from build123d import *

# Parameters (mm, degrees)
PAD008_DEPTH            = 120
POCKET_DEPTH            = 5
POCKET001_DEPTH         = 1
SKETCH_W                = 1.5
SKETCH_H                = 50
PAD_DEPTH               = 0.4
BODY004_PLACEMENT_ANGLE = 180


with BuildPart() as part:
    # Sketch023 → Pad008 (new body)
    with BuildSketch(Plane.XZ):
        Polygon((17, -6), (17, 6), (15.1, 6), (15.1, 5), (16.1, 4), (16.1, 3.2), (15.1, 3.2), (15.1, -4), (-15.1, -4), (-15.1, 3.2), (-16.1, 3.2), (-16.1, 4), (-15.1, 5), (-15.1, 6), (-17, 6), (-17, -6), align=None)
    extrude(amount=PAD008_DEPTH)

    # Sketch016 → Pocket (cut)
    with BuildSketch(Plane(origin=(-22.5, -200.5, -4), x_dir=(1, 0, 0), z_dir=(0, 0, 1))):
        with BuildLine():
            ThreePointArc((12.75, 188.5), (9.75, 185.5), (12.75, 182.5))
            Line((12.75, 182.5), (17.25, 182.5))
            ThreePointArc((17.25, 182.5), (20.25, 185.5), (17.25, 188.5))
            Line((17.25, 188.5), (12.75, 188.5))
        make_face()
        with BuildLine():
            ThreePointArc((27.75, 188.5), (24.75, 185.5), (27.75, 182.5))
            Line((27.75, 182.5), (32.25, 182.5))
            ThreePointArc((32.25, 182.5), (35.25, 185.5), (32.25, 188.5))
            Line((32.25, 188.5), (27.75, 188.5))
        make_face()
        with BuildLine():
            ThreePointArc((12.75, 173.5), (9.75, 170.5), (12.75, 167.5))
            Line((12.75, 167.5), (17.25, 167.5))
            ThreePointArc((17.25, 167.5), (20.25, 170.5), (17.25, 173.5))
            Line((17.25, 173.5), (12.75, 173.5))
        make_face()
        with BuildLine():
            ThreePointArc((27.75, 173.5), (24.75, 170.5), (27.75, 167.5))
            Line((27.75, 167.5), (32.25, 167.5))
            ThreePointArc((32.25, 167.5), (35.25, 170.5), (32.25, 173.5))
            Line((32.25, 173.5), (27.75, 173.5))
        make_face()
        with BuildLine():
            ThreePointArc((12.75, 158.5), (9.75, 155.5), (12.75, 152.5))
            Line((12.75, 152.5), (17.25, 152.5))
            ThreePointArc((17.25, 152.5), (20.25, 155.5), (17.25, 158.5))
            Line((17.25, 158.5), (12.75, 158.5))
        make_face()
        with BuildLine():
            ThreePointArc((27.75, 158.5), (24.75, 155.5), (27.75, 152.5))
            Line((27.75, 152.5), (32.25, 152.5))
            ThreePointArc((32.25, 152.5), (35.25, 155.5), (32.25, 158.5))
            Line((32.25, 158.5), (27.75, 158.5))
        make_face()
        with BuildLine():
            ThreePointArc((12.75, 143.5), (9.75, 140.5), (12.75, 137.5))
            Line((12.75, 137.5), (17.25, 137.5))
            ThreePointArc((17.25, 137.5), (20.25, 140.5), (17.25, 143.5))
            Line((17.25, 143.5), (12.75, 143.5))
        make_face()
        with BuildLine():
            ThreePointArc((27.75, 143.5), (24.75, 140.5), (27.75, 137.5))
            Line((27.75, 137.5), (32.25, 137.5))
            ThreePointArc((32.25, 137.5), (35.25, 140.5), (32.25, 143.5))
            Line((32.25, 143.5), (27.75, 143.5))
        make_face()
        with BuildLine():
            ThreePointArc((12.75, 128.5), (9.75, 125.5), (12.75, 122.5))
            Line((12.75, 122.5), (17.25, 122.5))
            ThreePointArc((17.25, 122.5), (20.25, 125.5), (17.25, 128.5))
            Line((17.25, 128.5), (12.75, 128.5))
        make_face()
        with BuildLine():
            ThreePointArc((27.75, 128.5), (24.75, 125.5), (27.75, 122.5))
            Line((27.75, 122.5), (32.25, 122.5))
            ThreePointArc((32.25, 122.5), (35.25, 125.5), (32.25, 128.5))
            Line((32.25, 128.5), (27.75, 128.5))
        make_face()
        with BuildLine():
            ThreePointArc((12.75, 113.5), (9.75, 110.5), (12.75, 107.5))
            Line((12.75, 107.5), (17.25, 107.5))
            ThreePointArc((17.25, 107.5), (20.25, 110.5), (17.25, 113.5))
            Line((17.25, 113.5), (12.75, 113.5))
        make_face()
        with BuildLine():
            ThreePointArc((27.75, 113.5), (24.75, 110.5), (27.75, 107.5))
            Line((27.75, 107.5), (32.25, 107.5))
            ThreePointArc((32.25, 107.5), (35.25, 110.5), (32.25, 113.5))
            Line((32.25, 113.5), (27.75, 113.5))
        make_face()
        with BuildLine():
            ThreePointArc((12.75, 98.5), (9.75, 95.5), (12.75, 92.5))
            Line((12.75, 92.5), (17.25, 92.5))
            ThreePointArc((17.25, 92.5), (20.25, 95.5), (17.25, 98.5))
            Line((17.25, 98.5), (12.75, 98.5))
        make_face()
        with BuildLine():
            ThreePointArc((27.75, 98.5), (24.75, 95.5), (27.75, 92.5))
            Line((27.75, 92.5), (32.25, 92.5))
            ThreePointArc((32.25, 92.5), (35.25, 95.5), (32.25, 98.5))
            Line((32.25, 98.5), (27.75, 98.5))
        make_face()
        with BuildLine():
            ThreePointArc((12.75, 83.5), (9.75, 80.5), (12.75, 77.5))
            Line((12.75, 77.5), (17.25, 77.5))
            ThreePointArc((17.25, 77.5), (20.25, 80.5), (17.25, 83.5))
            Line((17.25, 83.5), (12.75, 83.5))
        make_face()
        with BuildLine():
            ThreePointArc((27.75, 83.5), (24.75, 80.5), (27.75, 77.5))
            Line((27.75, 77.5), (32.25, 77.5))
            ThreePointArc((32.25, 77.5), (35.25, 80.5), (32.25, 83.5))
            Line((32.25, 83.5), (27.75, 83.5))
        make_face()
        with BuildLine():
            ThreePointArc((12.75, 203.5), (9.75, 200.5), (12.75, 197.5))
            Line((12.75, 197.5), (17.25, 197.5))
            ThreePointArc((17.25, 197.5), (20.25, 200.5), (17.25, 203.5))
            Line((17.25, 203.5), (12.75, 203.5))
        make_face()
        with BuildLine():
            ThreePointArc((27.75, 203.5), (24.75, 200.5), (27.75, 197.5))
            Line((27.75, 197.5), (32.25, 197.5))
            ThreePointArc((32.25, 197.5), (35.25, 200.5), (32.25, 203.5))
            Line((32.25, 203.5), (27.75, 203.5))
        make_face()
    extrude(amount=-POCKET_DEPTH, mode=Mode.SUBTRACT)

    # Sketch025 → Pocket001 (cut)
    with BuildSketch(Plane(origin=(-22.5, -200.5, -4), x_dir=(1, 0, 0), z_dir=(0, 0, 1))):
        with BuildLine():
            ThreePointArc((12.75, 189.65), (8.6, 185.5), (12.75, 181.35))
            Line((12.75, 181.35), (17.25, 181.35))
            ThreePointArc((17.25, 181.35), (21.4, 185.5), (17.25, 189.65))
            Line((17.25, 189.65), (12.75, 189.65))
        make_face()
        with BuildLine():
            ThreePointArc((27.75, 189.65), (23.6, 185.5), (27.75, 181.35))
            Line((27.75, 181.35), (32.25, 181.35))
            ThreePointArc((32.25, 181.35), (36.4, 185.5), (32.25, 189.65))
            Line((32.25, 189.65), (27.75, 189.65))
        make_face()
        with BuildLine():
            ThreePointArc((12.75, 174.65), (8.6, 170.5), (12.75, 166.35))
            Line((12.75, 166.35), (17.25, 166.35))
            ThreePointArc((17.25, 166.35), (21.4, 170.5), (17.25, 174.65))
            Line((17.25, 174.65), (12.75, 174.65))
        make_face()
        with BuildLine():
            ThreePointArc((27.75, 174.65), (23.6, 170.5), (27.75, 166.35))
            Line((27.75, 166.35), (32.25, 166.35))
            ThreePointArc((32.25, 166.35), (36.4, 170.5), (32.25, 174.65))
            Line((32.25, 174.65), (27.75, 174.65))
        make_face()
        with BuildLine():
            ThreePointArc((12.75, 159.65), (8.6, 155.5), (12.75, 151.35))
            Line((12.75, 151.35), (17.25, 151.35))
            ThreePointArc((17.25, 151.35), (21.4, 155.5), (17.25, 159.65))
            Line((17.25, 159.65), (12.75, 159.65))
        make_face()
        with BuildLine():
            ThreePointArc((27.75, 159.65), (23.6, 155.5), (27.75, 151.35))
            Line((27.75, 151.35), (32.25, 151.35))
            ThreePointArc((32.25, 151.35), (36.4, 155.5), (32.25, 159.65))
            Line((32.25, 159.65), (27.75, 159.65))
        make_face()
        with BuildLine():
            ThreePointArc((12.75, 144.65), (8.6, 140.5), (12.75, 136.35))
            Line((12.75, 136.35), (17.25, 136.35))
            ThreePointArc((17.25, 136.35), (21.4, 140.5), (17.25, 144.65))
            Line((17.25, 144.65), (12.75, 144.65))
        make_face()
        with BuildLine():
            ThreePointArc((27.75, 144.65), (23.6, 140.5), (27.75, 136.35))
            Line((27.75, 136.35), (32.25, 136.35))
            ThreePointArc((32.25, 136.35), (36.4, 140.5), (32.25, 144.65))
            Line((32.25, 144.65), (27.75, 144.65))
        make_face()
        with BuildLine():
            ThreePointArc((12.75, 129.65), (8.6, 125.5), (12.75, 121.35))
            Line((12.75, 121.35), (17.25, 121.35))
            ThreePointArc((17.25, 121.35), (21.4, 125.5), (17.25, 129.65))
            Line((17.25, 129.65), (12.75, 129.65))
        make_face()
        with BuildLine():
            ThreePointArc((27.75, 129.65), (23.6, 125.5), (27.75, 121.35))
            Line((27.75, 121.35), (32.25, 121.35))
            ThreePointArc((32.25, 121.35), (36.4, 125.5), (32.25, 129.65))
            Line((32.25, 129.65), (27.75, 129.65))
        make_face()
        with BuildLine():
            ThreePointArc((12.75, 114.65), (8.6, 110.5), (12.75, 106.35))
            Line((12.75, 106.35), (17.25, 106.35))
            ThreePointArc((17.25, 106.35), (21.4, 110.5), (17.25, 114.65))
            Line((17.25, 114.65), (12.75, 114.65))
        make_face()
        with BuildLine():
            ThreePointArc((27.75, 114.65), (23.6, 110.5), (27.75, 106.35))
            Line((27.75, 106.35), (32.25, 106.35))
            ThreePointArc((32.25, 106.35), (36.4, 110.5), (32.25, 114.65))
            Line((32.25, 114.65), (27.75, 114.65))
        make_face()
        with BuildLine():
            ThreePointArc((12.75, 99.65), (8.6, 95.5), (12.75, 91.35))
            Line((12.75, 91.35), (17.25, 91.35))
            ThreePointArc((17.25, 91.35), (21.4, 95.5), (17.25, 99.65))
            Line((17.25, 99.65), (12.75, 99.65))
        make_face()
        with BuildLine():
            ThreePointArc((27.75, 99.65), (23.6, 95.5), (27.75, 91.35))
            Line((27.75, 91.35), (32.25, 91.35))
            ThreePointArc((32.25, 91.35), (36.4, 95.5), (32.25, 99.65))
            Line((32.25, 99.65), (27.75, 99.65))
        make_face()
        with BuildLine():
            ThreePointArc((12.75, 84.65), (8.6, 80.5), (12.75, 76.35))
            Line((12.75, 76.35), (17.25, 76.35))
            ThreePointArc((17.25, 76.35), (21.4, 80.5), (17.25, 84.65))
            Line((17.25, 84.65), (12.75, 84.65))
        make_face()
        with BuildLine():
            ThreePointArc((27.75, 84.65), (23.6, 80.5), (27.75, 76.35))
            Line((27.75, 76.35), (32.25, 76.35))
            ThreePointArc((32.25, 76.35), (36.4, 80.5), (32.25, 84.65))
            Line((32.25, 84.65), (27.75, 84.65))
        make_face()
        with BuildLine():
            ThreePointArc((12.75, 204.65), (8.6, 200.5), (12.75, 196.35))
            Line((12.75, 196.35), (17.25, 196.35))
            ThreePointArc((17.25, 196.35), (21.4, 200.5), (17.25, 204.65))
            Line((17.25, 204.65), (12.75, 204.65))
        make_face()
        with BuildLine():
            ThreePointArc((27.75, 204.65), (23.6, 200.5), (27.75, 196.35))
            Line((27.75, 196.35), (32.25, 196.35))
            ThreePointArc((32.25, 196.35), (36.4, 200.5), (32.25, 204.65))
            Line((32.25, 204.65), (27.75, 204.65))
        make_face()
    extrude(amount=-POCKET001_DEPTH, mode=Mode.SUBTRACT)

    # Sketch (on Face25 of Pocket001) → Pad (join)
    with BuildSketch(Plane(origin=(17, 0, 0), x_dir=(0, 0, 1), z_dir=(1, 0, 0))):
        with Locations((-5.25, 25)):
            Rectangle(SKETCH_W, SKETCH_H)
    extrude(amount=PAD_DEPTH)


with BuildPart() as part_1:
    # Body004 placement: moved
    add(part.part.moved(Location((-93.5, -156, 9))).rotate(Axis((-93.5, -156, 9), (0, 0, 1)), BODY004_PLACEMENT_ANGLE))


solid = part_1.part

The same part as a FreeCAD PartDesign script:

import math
import FreeCAD as App
import Part
import Sketcher
Q = App.Units.Quantity


def add_polygon(sketch, points):
    """Adds a closed chain of lines whose ends are joined by coincident constraints."""
    first, n = sketch.GeometryCount, len(points)
    for a, b in zip(points, points[1:] + points[:1]):
        sketch.addGeometry(Part.LineSegment(App.Vector(*a, 0), App.Vector(*b, 0)), False)
    for i in range(n):
        sketch.addConstraint(Sketcher.Constraint("Coincident", first + i, 2, first + (i + 1) % n, 1))

doc = App.newDocument("Part")
body = doc.addObject("PartDesign::Body", "Body")

sketch1 = doc.addObject("Sketcher::SketchObject", "Sketch")
body.addObject(sketch1)
sketch1.AttachmentSupport = (doc.XZ_Plane, [""])
sketch1.MapMode = "FlatFace"
add_polygon(sketch1, [(17, -6), (17, 6), (15.1, 6), (15.1, 5), (16.1, 4), (16.1, 3.2), (15.1, 3.2), (15.1, -4), (-15.1, -4), (-15.1, 3.2), (-16.1, 3.2), (-16.1, 4), (-15.1, 5), (-15.1, 6), (-17, 6), (-17, -6)])
sketch1.addConstraint([
    Sketcher.Constraint("Vertical", 0),
    Sketcher.Constraint("Horizontal", 1),
    Sketcher.Constraint("Vertical", 2),
    Sketcher.Constraint("Vertical", 4),
    Sketcher.Constraint("Horizontal", 5),
    Sketcher.Constraint("Vertical", 6),
    Sketcher.Constraint("Horizontal", 7),
    Sketcher.Constraint("Vertical", 8),
    Sketcher.Constraint("Horizontal", 9),
    Sketcher.Constraint("Vertical", 10),
    Sketcher.Constraint("Vertical", 12),
    Sketcher.Constraint("Horizontal", 13),
    Sketcher.Constraint("Vertical", 14),
    Sketcher.Constraint("Horizontal", 15),
    Sketcher.Constraint("Symmetric", 0, 2, 14, 2, -1, 1),
    Sketcher.Constraint("Symmetric", 5, 2, 8, 2, -2),
    Sketcher.Constraint("Symmetric", 3, 2, 10, 2, -2),
    Sketcher.Constraint("Symmetric", 2, 2, 11, 2, -2),
    Sketcher.Constraint("Perpendicular", 3, 11),
    Sketcher.Constraint("Horizontal", 1, 2, 12, 2),
    Sketcher.Constraint("Vertical", 2, 2, 5, 2),
    Sketcher.Constraint("Equal", 9, 2),
    Sketcher.Constraint("DistanceX", 5, 2, 5, 1, Q("1 mm")),
    Sketcher.Constraint("DistanceX", 15, 1, 15, 2, Q("34 mm")),
    Sketcher.Constraint("DistanceY", 0, 1, 0, 2, Q("12 mm")),
    Sketcher.Constraint("DistanceX", 1, 2, 1, 1, Q("1.9 mm")),
    Sketcher.Constraint("DistanceY", 4, 2, 4, 1, Q("0.8 mm")),
    Sketcher.Constraint("DistanceY", 6, 2, 6, 1, Q("7.2 mm")),
])
pad1 = doc.addObject("PartDesign::Pad", "Pad")
body.addObject(pad1)
pad1.Profile = sketch1
pad1.Length = 120

sketch2 = doc.addObject("Sketcher::SketchObject", "Sketch001")
body.addObject(sketch2)
sketch2.AttachmentSupport = (doc.XY_Plane, [""])
sketch2.MapMode = "FlatFace"
sketch2.AttachmentOffset = App.Placement(App.Vector(0, 0, -4), App.Rotation())
sketch2.addGeometry([
    Part.ArcOfCircle(Part.Circle(App.Vector(-9.8, -15, 0), App.Vector(0, 0, 1), 3), math.radians(90), math.radians(270)),
    Part.LineSegment(App.Vector(-9.8, -18, 0), App.Vector(-5.2, -18, 0)),
    Part.ArcOfCircle(Part.Circle(App.Vector(-5.2, -15, 0), App.Vector(0, 0, 1), 3), math.radians(-90), math.radians(90)),
    Part.LineSegment(App.Vector(-5.2, -12, 0), App.Vector(-9.8, -12, 0)),
    Part.ArcOfCircle(Part.Circle(App.Vector(5.2, -15, 0), App.Vector(0, 0, 1), 3), math.radians(90), math.radians(270)),
    Part.LineSegment(App.Vector(5.2, -18, 0), App.Vector(9.8, -18, 0)),
    Part.ArcOfCircle(Part.Circle(App.Vector(9.8, -15, 0), App.Vector(0, 0, 1), 3), math.radians(-90), math.radians(90)),
    Part.LineSegment(App.Vector(9.8, -12, 0), App.Vector(5.2, -12, 0)),
    Part.ArcOfCircle(Part.Circle(App.Vector(-9.8, -30, 0), App.Vector(0, 0, 1), 3), math.radians(90), math.radians(270)),
    Part.LineSegment(App.Vector(-9.8, -33, 0), App.Vector(-5.2, -33, 0)),
    Part.ArcOfCircle(Part.Circle(App.Vector(-5.2, -30, 0), App.Vector(0, 0, 1), 3), math.radians(-90), math.radians(90)),
    Part.LineSegment(App.Vector(-5.2, -27, 0), App.Vector(-9.8, -27, 0)),
    Part.ArcOfCircle(Part.Circle(App.Vector(5.2, -30, 0), App.Vector(0, 0, 1), 3), math.radians(90), math.radians(270)),
    Part.LineSegment(App.Vector(5.2, -33, 0), App.Vector(9.8, -33, 0)),
    Part.ArcOfCircle(Part.Circle(App.Vector(9.8, -30, 0), App.Vector(0, 0, 1), 3), math.radians(-90), math.radians(90)),
    Part.LineSegment(App.Vector(9.8, -27, 0), App.Vector(5.2, -27, 0)),
    Part.ArcOfCircle(Part.Circle(App.Vector(-9.8, -45, 0), App.Vector(0, 0, 1), 3), math.radians(90), math.radians(270)),
    Part.LineSegment(App.Vector(-9.8, -48, 0), App.Vector(-5.2, -48, 0)),
    Part.ArcOfCircle(Part.Circle(App.Vector(-5.2, -45, 0), App.Vector(0, 0, 1), 3), math.radians(-90), math.radians(90)),
    Part.LineSegment(App.Vector(-5.2, -42, 0), App.Vector(-9.8, -42, 0)),
    Part.ArcOfCircle(Part.Circle(App.Vector(5.2, -45, 0), App.Vector(0, 0, 1), 3), math.radians(90), math.radians(270)),
    Part.LineSegment(App.Vector(5.2, -48, 0), App.Vector(9.8, -48, 0)),
    Part.ArcOfCircle(Part.Circle(App.Vector(9.8, -45, 0), App.Vector(0, 0, 1), 3), math.radians(-90), math.radians(90)),
    Part.LineSegment(App.Vector(9.8, -42, 0), App.Vector(5.2, -42, 0)),
    Part.ArcOfCircle(Part.Circle(App.Vector(-9.8, -60, 0), App.Vector(0, 0, 1), 3), math.radians(90), math.radians(270)),
    Part.LineSegment(App.Vector(-9.8, -63, 0), App.Vector(-5.2, -63, 0)),
    Part.ArcOfCircle(Part.Circle(App.Vector(-5.2, -60, 0), App.Vector(0, 0, 1), 3), math.radians(-90), math.radians(90)),
    Part.LineSegment(App.Vector(-5.2, -57, 0), App.Vector(-9.8, -57, 0)),
    Part.ArcOfCircle(Part.Circle(App.Vector(5.2, -60, 0), App.Vector(0, 0, 1), 3), math.radians(90), math.radians(270)),
    Part.LineSegment(App.Vector(5.2, -63, 0), App.Vector(9.8, -63, 0)),
    Part.ArcOfCircle(Part.Circle(App.Vector(9.8, -60, 0), App.Vector(0, 0, 1), 3), math.radians(-90), math.radians(90)),
    Part.LineSegment(App.Vector(9.8, -57, 0), App.Vector(5.2, -57, 0)),
    Part.ArcOfCircle(Part.Circle(App.Vector(-9.8, -75, 0), App.Vector(0, 0, 1), 3), math.radians(90), math.radians(270)),
    Part.LineSegment(App.Vector(-9.8, -78, 0), App.Vector(-5.2, -78, 0)),
    Part.ArcOfCircle(Part.Circle(App.Vector(-5.2, -75, 0), App.Vector(0, 0, 1), 3), math.radians(-90), math.radians(90)),
    Part.LineSegment(App.Vector(-5.2, -72, 0), App.Vector(-9.8, -72, 0)),
    Part.ArcOfCircle(Part.Circle(App.Vector(5.2, -75, 0), App.Vector(0, 0, 1), 3), math.radians(90), math.radians(270)),
    Part.LineSegment(App.Vector(5.2, -78, 0), App.Vector(9.8, -78, 0)),
    Part.ArcOfCircle(Part.Circle(App.Vector(9.8, -75, 0), App.Vector(0, 0, 1), 3), math.radians(-90), math.radians(90)),
    Part.LineSegment(App.Vector(9.8, -72, 0), App.Vector(5.2, -72, 0)),
    Part.ArcOfCircle(Part.Circle(App.Vector(-9.8, -90, 0), App.Vector(0, 0, 1), 3), math.radians(90), math.radians(270)),
    Part.LineSegment(App.Vector(-9.8, -93, 0), App.Vector(-5.2, -93, 0)),
    Part.ArcOfCircle(Part.Circle(App.Vector(-5.2, -90, 0), App.Vector(0, 0, 1), 3), math.radians(-90), math.radians(90)),
    Part.LineSegment(App.Vector(-5.2, -87, 0), App.Vector(-9.8, -87, 0)),
    Part.ArcOfCircle(Part.Circle(App.Vector(5.2, -90, 0), App.Vector(0, 0, 1), 3), math.radians(90), math.radians(270)),
    Part.LineSegment(App.Vector(5.2, -93, 0), App.Vector(9.8, -93, 0)),
    Part.ArcOfCircle(Part.Circle(App.Vector(9.8, -90, 0), App.Vector(0, 0, 1), 3), math.radians(-90), math.radians(90)),
    Part.LineSegment(App.Vector(9.8, -87, 0), App.Vector(5.2, -87, 0)),
    Part.ArcOfCircle(Part.Circle(App.Vector(-9.8, -105, 0), App.Vector(0, 0, 1), 3), math.radians(90), math.radians(270)),
    Part.LineSegment(App.Vector(-9.8, -108, 0), App.Vector(-5.2, -108, 0)),
    Part.ArcOfCircle(Part.Circle(App.Vector(-5.2, -105, 0), App.Vector(0, 0, 1), 3), math.radians(-90), math.radians(90)),
    Part.LineSegment(App.Vector(-5.2, -102, 0), App.Vector(-9.8, -102, 0)),
    Part.ArcOfCircle(Part.Circle(App.Vector(5.2, -105, 0), App.Vector(0, 0, 1), 3), math.radians(90), math.radians(270)),
    Part.LineSegment(App.Vector(5.2, -108, 0), App.Vector(9.8, -108, 0)),
    Part.ArcOfCircle(Part.Circle(App.Vector(9.8, -105, 0), App.Vector(0, 0, 1), 3), math.radians(-90), math.radians(90)),
    Part.LineSegment(App.Vector(9.8, -102, 0), App.Vector(5.2, -102, 0)),
    Part.ArcOfCircle(Part.Circle(App.Vector(-9.8, -120, 0), App.Vector(0, 0, 1), 3), math.radians(90), math.radians(270)),
    Part.LineSegment(App.Vector(-9.8, -123, 0), App.Vector(-5.2, -123, 0)),
    Part.ArcOfCircle(Part.Circle(App.Vector(-5.2, -120, 0), App.Vector(0, 0, 1), 3), math.radians(-90), math.radians(90)),
    Part.LineSegment(App.Vector(-5.2, -117, 0), App.Vector(-9.8, -117, 0)),
    Part.ArcOfCircle(Part.Circle(App.Vector(5.2, -120, 0), App.Vector(0, 0, 1), 3), math.radians(90), math.radians(270)),
    Part.LineSegment(App.Vector(5.2, -123, 0), App.Vector(9.8, -123, 0)),
    Part.ArcOfCircle(Part.Circle(App.Vector(9.8, -120, 0), App.Vector(0, 0, 1), 3), math.radians(-90), math.radians(90)),
    Part.LineSegment(App.Vector(9.8, -117, 0), App.Vector(5.2, -117, 0)),
    Part.ArcOfCircle(Part.Circle(App.Vector(-9.8, 0, 0), App.Vector(0, 0, 1), 3), math.radians(90), math.radians(270)),
    Part.LineSegment(App.Vector(-9.8, -3, 0), App.Vector(-5.2, -3, 0)),
    Part.ArcOfCircle(Part.Circle(App.Vector(-5.2, 0, 0), App.Vector(0, 0, 1), 3), math.radians(-90), math.radians(90)),
    Part.LineSegment(App.Vector(-5.2, 3, 0), App.Vector(-9.8, 3, 0)),
    Part.ArcOfCircle(Part.Circle(App.Vector(5.2, 0, 0), App.Vector(0, 0, 1), 3), math.radians(90), math.radians(270)),
    Part.LineSegment(App.Vector(5.2, -3, 0), App.Vector(9.8, -3, 0)),
    Part.ArcOfCircle(Part.Circle(App.Vector(9.8, 0, 0), App.Vector(0, 0, 1), 3), math.radians(-90), math.radians(90)),
    Part.LineSegment(App.Vector(9.8, 3, 0), App.Vector(5.2, 3, 0)),
], False)
sketch2.addConstraint([
    Sketcher.Constraint("Tangent", 0, 2, 1, 1),
    Sketcher.Constraint("Tangent", 1, 2, 2, 1),
    Sketcher.Constraint("Tangent", 2, 2, 3, 1),
    Sketcher.Constraint("Tangent", 3, 2, 0, 1),
    Sketcher.Constraint("Tangent", 4, 2, 5, 1),
    Sketcher.Constraint("Tangent", 5, 2, 6, 1),
    Sketcher.Constraint("Tangent", 6, 2, 7, 1),
    Sketcher.Constraint("Tangent", 7, 2, 4, 1),
    Sketcher.Constraint("Tangent", 8, 2, 9, 1),
    Sketcher.Constraint("Tangent", 9, 2, 10, 1),
    Sketcher.Constraint("Tangent", 10, 2, 11, 1),
    Sketcher.Constraint("Tangent", 11, 2, 8, 1),
    Sketcher.Constraint("Tangent", 12, 2, 13, 1),
    Sketcher.Constraint("Tangent", 13, 2, 14, 1),
    Sketcher.Constraint("Tangent", 14, 2, 15, 1),
    Sketcher.Constraint("Tangent", 15, 2, 12, 1),
    Sketcher.Constraint("Tangent", 16, 2, 17, 1),
    Sketcher.Constraint("Tangent", 17, 2, 18, 1),
    Sketcher.Constraint("Tangent", 18, 2, 19, 1),
    Sketcher.Constraint("Tangent", 19, 2, 16, 1),
    Sketcher.Constraint("Tangent", 20, 2, 21, 1),
    Sketcher.Constraint("Tangent", 21, 2, 22, 1),
    Sketcher.Constraint("Tangent", 22, 2, 23, 1),
    Sketcher.Constraint("Tangent", 23, 2, 20, 1),
    Sketcher.Constraint("Tangent", 24, 2, 25, 1),
    Sketcher.Constraint("Tangent", 25, 2, 26, 1),
    Sketcher.Constraint("Tangent", 26, 2, 27, 1),
    Sketcher.Constraint("Tangent", 27, 2, 24, 1),
    Sketcher.Constraint("Tangent", 28, 2, 29, 1),
    Sketcher.Constraint("Tangent", 29, 2, 30, 1),
    Sketcher.Constraint("Tangent", 30, 2, 31, 1),
    Sketcher.Constraint("Tangent", 31, 2, 28, 1),
    Sketcher.Constraint("Tangent", 32, 2, 33, 1),
    Sketcher.Constraint("Tangent", 33, 2, 34, 1),
    Sketcher.Constraint("Tangent", 34, 2, 35, 1),
    Sketcher.Constraint("Tangent", 35, 2, 32, 1),
    Sketcher.Constraint("Tangent", 36, 2, 37, 1),
    Sketcher.Constraint("Tangent", 37, 2, 38, 1),
    Sketcher.Constraint("Tangent", 38, 2, 39, 1),
    Sketcher.Constraint("Tangent", 39, 2, 36, 1),
    Sketcher.Constraint("Tangent", 40, 2, 41, 1),
    Sketcher.Constraint("Tangent", 41, 2, 42, 1),
    Sketcher.Constraint("Tangent", 42, 2, 43, 1),
    Sketcher.Constraint("Tangent", 43, 2, 40, 1),
    Sketcher.Constraint("Tangent", 44, 2, 45, 1),
    Sketcher.Constraint("Tangent", 45, 2, 46, 1),
    Sketcher.Constraint("Tangent", 46, 2, 47, 1),
    Sketcher.Constraint("Tangent", 47, 2, 44, 1),
    Sketcher.Constraint("Tangent", 48, 2, 49, 1),
    Sketcher.Constraint("Tangent", 49, 2, 50, 1),
    Sketcher.Constraint("Tangent", 50, 2, 51, 1),
    Sketcher.Constraint("Tangent", 51, 2, 48, 1),
    Sketcher.Constraint("Tangent", 52, 2, 53, 1),
    Sketcher.Constraint("Tangent", 53, 2, 54, 1),
    Sketcher.Constraint("Tangent", 54, 2, 55, 1),
    Sketcher.Constraint("Tangent", 55, 2, 52, 1),
    Sketcher.Constraint("Tangent", 56, 2, 57, 1),
    Sketcher.Constraint("Tangent", 57, 2, 58, 1),
    Sketcher.Constraint("Tangent", 58, 2, 59, 1),
    Sketcher.Constraint("Tangent", 59, 2, 56, 1),
    Sketcher.Constraint("Tangent", 60, 2, 61, 1),
    Sketcher.Constraint("Tangent", 61, 2, 62, 1),
    Sketcher.Constraint("Tangent", 62, 2, 63, 1),
    Sketcher.Constraint("Tangent", 63, 2, 60, 1),
    Sketcher.Constraint("Tangent", 64, 2, 65, 1),
    Sketcher.Constraint("Tangent", 65, 2, 66, 1),
    Sketcher.Constraint("Tangent", 66, 2, 67, 1),
    Sketcher.Constraint("Tangent", 67, 2, 64, 1),
    Sketcher.Constraint("Tangent", 68, 2, 69, 1),
    Sketcher.Constraint("Tangent", 69, 2, 70, 1),
    Sketcher.Constraint("Tangent", 70, 2, 71, 1),
    Sketcher.Constraint("Tangent", 71, 2, 68, 1),
    Sketcher.Constraint("Horizontal", 1),
    Sketcher.Constraint("Horizontal", 3),
    Sketcher.Constraint("Horizontal", 5),
    Sketcher.Constraint("Horizontal", 7),
    Sketcher.Constraint("Horizontal", 9),
    Sketcher.Constraint("Horizontal", 11),
    Sketcher.Constraint("Horizontal", 13),
    Sketcher.Constraint("Horizontal", 15),
    Sketcher.Constraint("Horizontal", 17),
    Sketcher.Constraint("Horizontal", 19),
    Sketcher.Constraint("Horizontal", 21),
    Sketcher.Constraint("Horizontal", 23),
    Sketcher.Constraint("Horizontal", 25),
    Sketcher.Constraint("Horizontal", 27),
    Sketcher.Constraint("Horizontal", 29),
    Sketcher.Constraint("Horizontal", 31),
    Sketcher.Constraint("Horizontal", 33),
    Sketcher.Constraint("Horizontal", 35),
    Sketcher.Constraint("Horizontal", 37),
    Sketcher.Constraint("Horizontal", 39),
    Sketcher.Constraint("Horizontal", 41),
    Sketcher.Constraint("Horizontal", 43),
    Sketcher.Constraint("Horizontal", 45),
    Sketcher.Constraint("Horizontal", 47),
    Sketcher.Constraint("Horizontal", 49),
    Sketcher.Constraint("Horizontal", 51),
    Sketcher.Constraint("Horizontal", 53),
    Sketcher.Constraint("Horizontal", 55),
    Sketcher.Constraint("Horizontal", 57),
    Sketcher.Constraint("Horizontal", 59),
    Sketcher.Constraint("Horizontal", 61),
    Sketcher.Constraint("Horizontal", 63),
    Sketcher.Constraint("Horizontal", 65),
    Sketcher.Constraint("Horizontal", 67),
    Sketcher.Constraint("Horizontal", 69),
    Sketcher.Constraint("Horizontal", 71),
    Sketcher.Constraint("Equal", 2, 4),
    Sketcher.Constraint("Equal", 6, 8),
    Sketcher.Constraint("Equal", 10, 12),
    Sketcher.Constraint("Equal", 14, 16),
    Sketcher.Constraint("Equal", 18, 20),
    Sketcher.Constraint("Equal", 22, 24),
    Sketcher.Constraint("Equal", 26, 28),
    Sketcher.Constraint("Equal", 30, 32),
    Sketcher.Constraint("Equal", 34, 36),
    Sketcher.Constraint("Equal", 38, 40),
    Sketcher.Constraint("Equal", 42, 44),
    Sketcher.Constraint("Equal", 46, 48),
    Sketcher.Constraint("Equal", 50, 52),
    Sketcher.Constraint("Equal", 54, 56),
    Sketcher.Constraint("Equal", 58, 60),
    Sketcher.Constraint("Equal", 62, 64),
    Sketcher.Constraint("Equal", 66, 68),
    Sketcher.Constraint("Symmetric", 66, 3, 68, 3, -1, 1),
    Sketcher.Constraint("Symmetric", 2, 3, 4, 3, -2),
    Sketcher.Constraint("Symmetric", 10, 3, 12, 3, -2),
    Sketcher.Constraint("Symmetric", 18, 3, 20, 3, -2),
    Sketcher.Constraint("Symmetric", 26, 3, 28, 3, -2),
    Sketcher.Constraint("Symmetric", 34, 3, 36, 3, -2),
    Sketcher.Constraint("Symmetric", 42, 3, 44, 3, -2),
    Sketcher.Constraint("Symmetric", 50, 3, 52, 3, -2),
    Sketcher.Constraint("Symmetric", 58, 3, 60, 3, -2),
    Sketcher.Constraint("Symmetric", 64, 3, 70, 3, -2),
    Sketcher.Constraint("Vertical", 0, 3, 8, 3),
    Sketcher.Constraint("Vertical", 2, 3, 10, 3),
    Sketcher.Constraint("Vertical", 6, 3, 14, 3),
    Sketcher.Constraint("Vertical", 8, 3, 16, 3),
    Sketcher.Constraint("Vertical", 10, 3, 18, 3),
    Sketcher.Constraint("Vertical", 14, 3, 22, 3),
    Sketcher.Constraint("Vertical", 16, 3, 24, 3),
    Sketcher.Constraint("Vertical", 18, 3, 26, 3),
    Sketcher.Constraint("Vertical", 22, 3, 30, 3),
    Sketcher.Constraint("Vertical", 24, 3, 32, 3),
    Sketcher.Constraint("Vertical", 26, 3, 34, 3),
    Sketcher.Constraint("Vertical", 30, 3, 38, 3),
    Sketcher.Constraint("Vertical", 32, 3, 40, 3),
    Sketcher.Constraint("Vertical", 34, 3, 42, 3),
    Sketcher.Constraint("Vertical", 38, 3, 46, 3),
    Sketcher.Constraint("Vertical", 40, 3, 48, 3),
    Sketcher.Constraint("Vertical", 42, 3, 50, 3),
    Sketcher.Constraint("Vertical", 46, 3, 54, 3),
    Sketcher.Constraint("Vertical", 48, 3, 56, 3),
    Sketcher.Constraint("Vertical", 50, 3, 58, 3),
    Sketcher.Constraint("Vertical", 54, 3, 62, 3),
    Sketcher.Constraint("Vertical", 56, 3, 64, 3),
    Sketcher.Constraint("Vertical", 58, 3, 66, 3),
    Sketcher.Constraint("Vertical", 62, 3, 70, 3),
    Sketcher.Constraint("Radius", 0, Q("3 mm")),
    Sketcher.Constraint("DistanceX", 1, 1, 1, 2, Q("4.5 mm")),
    Sketcher.Constraint("DistanceY", 0, 3, -1, 1, Q("15 mm")),
    Sketcher.Constraint("DistanceY", 8, 3, -1, 1, Q("30 mm")),
    Sketcher.Constraint("DistanceY", 16, 3, -1, 1, Q("45 mm")),
    Sketcher.Constraint("DistanceY", 24, 3, -1, 1, Q("60 mm")),
    Sketcher.Constraint("DistanceY", 32, 3, -1, 1, Q("75 mm")),
    Sketcher.Constraint("DistanceY", 40, 3, -1, 1, Q("90 mm")),
    Sketcher.Constraint("DistanceY", 48, 3, -1, 1, Q("105 mm")),
    Sketcher.Constraint("DistanceY", 56, 3, -1, 1, Q("120 mm")),
    Sketcher.Constraint("DistanceX", 0, 3, -1, 1, Q("9.75 mm")),
])
pocket1 = doc.addObject("PartDesign::Pocket", "Pocket")
body.addObject(pocket1)
pocket1.Profile = sketch2
pocket1.Length = 5

sketch3 = doc.addObject("Sketcher::SketchObject", "Sketch002")
body.addObject(sketch3)
sketch3.AttachmentSupport = (doc.XY_Plane, [""])
sketch3.MapMode = "FlatFace"
sketch3.AttachmentOffset = App.Placement(App.Vector(0, 0, -4), App.Rotation())
sketch3.addGeometry([
    Part.ArcOfCircle(Part.Circle(App.Vector(-9.8, -15, 0), App.Vector(0, 0, 1), 4.2), math.radians(90), math.radians(270)),
    Part.LineSegment(App.Vector(-9.8, -19.1, 0), App.Vector(-5.2, -19.1, 0)),
    Part.ArcOfCircle(Part.Circle(App.Vector(-5.2, -15, 0), App.Vector(0, 0, 1), 4.2), math.radians(-90), math.radians(90)),
    Part.LineSegment(App.Vector(-5.2, -10.8, 0), App.Vector(-9.8, -10.8, 0)),
    Part.ArcOfCircle(Part.Circle(App.Vector(5.2, -15, 0), App.Vector(0, 0, 1), 4.2), math.radians(90), math.radians(270)),
    Part.LineSegment(App.Vector(5.2, -19.1, 0), App.Vector(9.8, -19.1, 0)),
    Part.ArcOfCircle(Part.Circle(App.Vector(9.8, -15, 0), App.Vector(0, 0, 1), 4.2), math.radians(-90), math.radians(90)),
    Part.LineSegment(App.Vector(9.8, -10.8, 0), App.Vector(5.2, -10.8, 0)),
    Part.ArcOfCircle(Part.Circle(App.Vector(-9.8, -30, 0), App.Vector(0, 0, 1), 4.2), math.radians(90), math.radians(270)),
    Part.LineSegment(App.Vector(-9.8, -34.1, 0), App.Vector(-5.2, -34.1, 0)),
    Part.ArcOfCircle(Part.Circle(App.Vector(-5.2, -30, 0), App.Vector(0, 0, 1), 4.2), math.radians(-90), math.radians(90)),
    Part.LineSegment(App.Vector(-5.2, -25.9, 0), App.Vector(-9.8, -25.9, 0)),
    Part.ArcOfCircle(Part.Circle(App.Vector(5.2, -30, 0), App.Vector(0, 0, 1), 4.2), math.radians(90), math.radians(270)),
    Part.LineSegment(App.Vector(5.2, -34.1, 0), App.Vector(9.8, -34.1, 0)),
    Part.ArcOfCircle(Part.Circle(App.Vector(9.8, -30, 0), App.Vector(0, 0, 1), 4.2), math.radians(-90), math.radians(90)),
    Part.LineSegment(App.Vector(9.8, -25.9, 0), App.Vector(5.2, -25.9, 0)),
    Part.ArcOfCircle(Part.Circle(App.Vector(-9.8, -45, 0), App.Vector(0, 0, 1), 4.2), math.radians(90), math.radians(270)),
    Part.LineSegment(App.Vector(-9.8, -49.1, 0), App.Vector(-5.2, -49.1, 0)),
    Part.ArcOfCircle(Part.Circle(App.Vector(-5.2, -45, 0), App.Vector(0, 0, 1), 4.2), math.radians(-90), math.radians(90)),
    Part.LineSegment(App.Vector(-5.2, -40.9, 0), App.Vector(-9.8, -40.9, 0)),
    Part.ArcOfCircle(Part.Circle(App.Vector(5.2, -45, 0), App.Vector(0, 0, 1), 4.2), math.radians(90), math.radians(270)),
    Part.LineSegment(App.Vector(5.2, -49.1, 0), App.Vector(9.8, -49.1, 0)),
    Part.ArcOfCircle(Part.Circle(App.Vector(9.8, -45, 0), App.Vector(0, 0, 1), 4.2), math.radians(-90), math.radians(90)),
    Part.LineSegment(App.Vector(9.8, -40.9, 0), App.Vector(5.2, -40.9, 0)),
    Part.ArcOfCircle(Part.Circle(App.Vector(-9.8, -60, 0), App.Vector(0, 0, 1), 4.2), math.radians(90), math.radians(270)),
    Part.LineSegment(App.Vector(-9.8, -64.2, 0), App.Vector(-5.2, -64.2, 0)),
    Part.ArcOfCircle(Part.Circle(App.Vector(-5.2, -60, 0), App.Vector(0, 0, 1), 4.2), math.radians(-90), math.radians(90)),
    Part.LineSegment(App.Vector(-5.2, -55.9, 0), App.Vector(-9.8, -55.9, 0)),
    Part.ArcOfCircle(Part.Circle(App.Vector(5.2, -60, 0), App.Vector(0, 0, 1), 4.2), math.radians(90), math.radians(270)),
    Part.LineSegment(App.Vector(5.2, -64.2, 0), App.Vector(9.8, -64.2, 0)),
    Part.ArcOfCircle(Part.Circle(App.Vector(9.8, -60, 0), App.Vector(0, 0, 1), 4.2), math.radians(-90), math.radians(90)),
    Part.LineSegment(App.Vector(9.8, -55.9, 0), App.Vector(5.2, -55.9, 0)),
    Part.ArcOfCircle(Part.Circle(App.Vector(-9.8, -75, 0), App.Vector(0, 0, 1), 4.2), math.radians(90), math.radians(270)),
    Part.LineSegment(App.Vector(-9.8, -79.2, 0), App.Vector(-5.2, -79.2, 0)),
    Part.ArcOfCircle(Part.Circle(App.Vector(-5.2, -75, 0), App.Vector(0, 0, 1), 4.2), math.radians(-90), math.radians(90)),
    Part.LineSegment(App.Vector(-5.2, -70.8, 0), App.Vector(-9.8, -70.8, 0)),
    Part.ArcOfCircle(Part.Circle(App.Vector(5.2, -75, 0), App.Vector(0, 0, 1), 4.2), math.radians(90), math.radians(270)),
    Part.LineSegment(App.Vector(5.2, -79.2, 0), App.Vector(9.8, -79.2, 0)),
    Part.ArcOfCircle(Part.Circle(App.Vector(9.8, -75, 0), App.Vector(0, 0, 1), 4.2), math.radians(-90), math.radians(90)),
    Part.LineSegment(App.Vector(9.8, -70.8, 0), App.Vector(5.2, -70.8, 0)),
    Part.ArcOfCircle(Part.Circle(App.Vector(-9.8, -90, 0), App.Vector(0, 0, 1), 4.2), math.radians(90), math.radians(270)),
    Part.LineSegment(App.Vector(-9.8, -94.2, 0), App.Vector(-5.2, -94.2, 0)),
    Part.ArcOfCircle(Part.Circle(App.Vector(-5.2, -90, 0), App.Vector(0, 0, 1), 4.2), math.radians(-90), math.radians(90)),
    Part.LineSegment(App.Vector(-5.2, -85.8, 0), App.Vector(-9.8, -85.8, 0)),
    Part.ArcOfCircle(Part.Circle(App.Vector(5.2, -90, 0), App.Vector(0, 0, 1), 4.2), math.radians(90), math.radians(270)),
    Part.LineSegment(App.Vector(5.2, -94.2, 0), App.Vector(9.8, -94.2, 0)),
    Part.ArcOfCircle(Part.Circle(App.Vector(9.8, -90, 0), App.Vector(0, 0, 1), 4.2), math.radians(-90), math.radians(90)),
    Part.LineSegment(App.Vector(9.8, -85.8, 0), App.Vector(5.2, -85.8, 0)),
    Part.ArcOfCircle(Part.Circle(App.Vector(-9.8, -105, 0), App.Vector(0, 0, 1), 4.2), math.radians(90), math.radians(270)),
    Part.LineSegment(App.Vector(-9.8, -109.2, 0), App.Vector(-5.2, -109.2, 0)),
    Part.ArcOfCircle(Part.Circle(App.Vector(-5.2, -105, 0), App.Vector(0, 0, 1), 4.2), math.radians(-90), math.radians(90)),
    Part.LineSegment(App.Vector(-5.2, -100.8, 0), App.Vector(-9.8, -100.8, 0)),
    Part.ArcOfCircle(Part.Circle(App.Vector(5.2, -105, 0), App.Vector(0, 0, 1), 4.2), math.radians(90), math.radians(270)),
    Part.LineSegment(App.Vector(5.2, -109.2, 0), App.Vector(9.8, -109.2, 0)),
    Part.ArcOfCircle(Part.Circle(App.Vector(9.8, -105, 0), App.Vector(0, 0, 1), 4.2), math.radians(-90), math.radians(90)),
    Part.LineSegment(App.Vector(9.8, -100.8, 0), App.Vector(5.2, -100.8, 0)),
    Part.ArcOfCircle(Part.Circle(App.Vector(-9.8, -120, 0), App.Vector(0, 0, 1), 4.2), math.radians(90), math.radians(270)),
    Part.LineSegment(App.Vector(-9.8, -124.2, 0), App.Vector(-5.2, -124.2, 0)),
    Part.ArcOfCircle(Part.Circle(App.Vector(-5.2, -120, 0), App.Vector(0, 0, 1), 4.2), math.radians(-90), math.radians(90)),
    Part.LineSegment(App.Vector(-5.2, -115.8, 0), App.Vector(-9.8, -115.8, 0)),
    Part.ArcOfCircle(Part.Circle(App.Vector(5.2, -120, 0), App.Vector(0, 0, 1), 4.2), math.radians(90), math.radians(270)),
    Part.LineSegment(App.Vector(5.2, -124.2, 0), App.Vector(9.8, -124.2, 0)),
    Part.ArcOfCircle(Part.Circle(App.Vector(9.8, -120, 0), App.Vector(0, 0, 1), 4.2), math.radians(-90), math.radians(90)),
    Part.LineSegment(App.Vector(9.8, -115.8, 0), App.Vector(5.2, -115.8, 0)),
    Part.ArcOfCircle(Part.Circle(App.Vector(-9.8, 0, 0), App.Vector(0, 0, 1), 4.2), math.radians(90), math.radians(270)),
    Part.LineSegment(App.Vector(-9.8, -4.2, 0), App.Vector(-5.2, -4.2, 0)),
    Part.ArcOfCircle(Part.Circle(App.Vector(-5.2, 0, 0), App.Vector(0, 0, 1), 4.2), math.radians(-90), math.radians(90)),
    Part.LineSegment(App.Vector(-5.2, 4.2, 0), App.Vector(-9.8, 4.2, 0)),
    Part.ArcOfCircle(Part.Circle(App.Vector(5.2, 0, 0), App.Vector(0, 0, 1), 4.2), math.radians(90), math.radians(270)),
    Part.LineSegment(App.Vector(5.2, -4.2, 0), App.Vector(9.8, -4.2, 0)),
    Part.ArcOfCircle(Part.Circle(App.Vector(9.8, 0, 0), App.Vector(0, 0, 1), 4.2), math.radians(-90), math.radians(90)),
    Part.LineSegment(App.Vector(9.8, 4.2, 0), App.Vector(5.2, 4.2, 0)),
], False)
sketch3.addConstraint([
    Sketcher.Constraint("Tangent", 0, 2, 1, 1),
    Sketcher.Constraint("Tangent", 1, 2, 2, 1),
    Sketcher.Constraint("Tangent", 2, 2, 3, 1),
    Sketcher.Constraint("Tangent", 3, 2, 0, 1),
    Sketcher.Constraint("Tangent", 4, 2, 5, 1),
    Sketcher.Constraint("Tangent", 5, 2, 6, 1),
    Sketcher.Constraint("Tangent", 6, 2, 7, 1),
    Sketcher.Constraint("Tangent", 7, 2, 4, 1),
    Sketcher.Constraint("Tangent", 8, 2, 9, 1),
    Sketcher.Constraint("Tangent", 9, 2, 10, 1),
    Sketcher.Constraint("Tangent", 10, 2, 11, 1),
    Sketcher.Constraint("Tangent", 11, 2, 8, 1),
    Sketcher.Constraint("Tangent", 12, 2, 13, 1),
    Sketcher.Constraint("Tangent", 13, 2, 14, 1),
    Sketcher.Constraint("Tangent", 14, 2, 15, 1),
    Sketcher.Constraint("Tangent", 15, 2, 12, 1),
    Sketcher.Constraint("Tangent", 16, 2, 17, 1),
    Sketcher.Constraint("Tangent", 17, 2, 18, 1),
    Sketcher.Constraint("Tangent", 18, 2, 19, 1),
    Sketcher.Constraint("Tangent", 19, 2, 16, 1),
    Sketcher.Constraint("Tangent", 20, 2, 21, 1),
    Sketcher.Constraint("Tangent", 21, 2, 22, 1),
    Sketcher.Constraint("Tangent", 22, 2, 23, 1),
    Sketcher.Constraint("Tangent", 23, 2, 20, 1),
    Sketcher.Constraint("Tangent", 24, 2, 25, 1),
    Sketcher.Constraint("Tangent", 25, 2, 26, 1),
    Sketcher.Constraint("Tangent", 26, 2, 27, 1),
    Sketcher.Constraint("Tangent", 27, 2, 24, 1),
    Sketcher.Constraint("Tangent", 28, 2, 29, 1),
    Sketcher.Constraint("Tangent", 29, 2, 30, 1),
    Sketcher.Constraint("Tangent", 30, 2, 31, 1),
    Sketcher.Constraint("Tangent", 31, 2, 28, 1),
    Sketcher.Constraint("Tangent", 32, 2, 33, 1),
    Sketcher.Constraint("Tangent", 33, 2, 34, 1),
    Sketcher.Constraint("Tangent", 34, 2, 35, 1),
    Sketcher.Constraint("Tangent", 35, 2, 32, 1),
    Sketcher.Constraint("Tangent", 36, 2, 37, 1),
    Sketcher.Constraint("Tangent", 37, 2, 38, 1),
    Sketcher.Constraint("Tangent", 38, 2, 39, 1),
    Sketcher.Constraint("Tangent", 39, 2, 36, 1),
    Sketcher.Constraint("Tangent", 40, 2, 41, 1),
    Sketcher.Constraint("Tangent", 41, 2, 42, 1),
    Sketcher.Constraint("Tangent", 42, 2, 43, 1),
    Sketcher.Constraint("Tangent", 43, 2, 40, 1),
    Sketcher.Constraint("Tangent", 44, 2, 45, 1),
    Sketcher.Constraint("Tangent", 45, 2, 46, 1),
    Sketcher.Constraint("Tangent", 46, 2, 47, 1),
    Sketcher.Constraint("Tangent", 47, 2, 44, 1),
    Sketcher.Constraint("Tangent", 48, 2, 49, 1),
    Sketcher.Constraint("Tangent", 49, 2, 50, 1),
    Sketcher.Constraint("Tangent", 50, 2, 51, 1),
    Sketcher.Constraint("Tangent", 51, 2, 48, 1),
    Sketcher.Constraint("Tangent", 52, 2, 53, 1),
    Sketcher.Constraint("Tangent", 53, 2, 54, 1),
    Sketcher.Constraint("Tangent", 54, 2, 55, 1),
    Sketcher.Constraint("Tangent", 55, 2, 52, 1),
    Sketcher.Constraint("Tangent", 56, 2, 57, 1),
    Sketcher.Constraint("Tangent", 57, 2, 58, 1),
    Sketcher.Constraint("Tangent", 58, 2, 59, 1),
    Sketcher.Constraint("Tangent", 59, 2, 56, 1),
    Sketcher.Constraint("Tangent", 60, 2, 61, 1),
    Sketcher.Constraint("Tangent", 61, 2, 62, 1),
    Sketcher.Constraint("Tangent", 62, 2, 63, 1),
    Sketcher.Constraint("Tangent", 63, 2, 60, 1),
    Sketcher.Constraint("Tangent", 64, 2, 65, 1),
    Sketcher.Constraint("Tangent", 65, 2, 66, 1),
    Sketcher.Constraint("Tangent", 66, 2, 67, 1),
    Sketcher.Constraint("Tangent", 67, 2, 64, 1),
    Sketcher.Constraint("Tangent", 68, 2, 69, 1),
    Sketcher.Constraint("Tangent", 69, 2, 70, 1),
    Sketcher.Constraint("Tangent", 70, 2, 71, 1),
    Sketcher.Constraint("Tangent", 71, 2, 68, 1),
    Sketcher.Constraint("Horizontal", 1),
    Sketcher.Constraint("Horizontal", 3),
    Sketcher.Constraint("Horizontal", 5),
    Sketcher.Constraint("Horizontal", 7),
    Sketcher.Constraint("Horizontal", 9),
    Sketcher.Constraint("Horizontal", 11),
    Sketcher.Constraint("Horizontal", 13),
    Sketcher.Constraint("Horizontal", 15),
    Sketcher.Constraint("Horizontal", 17),
    Sketcher.Constraint("Horizontal", 19),
    Sketcher.Constraint("Horizontal", 21),
    Sketcher.Constraint("Horizontal", 23),
    Sketcher.Constraint("Horizontal", 25),
    Sketcher.Constraint("Horizontal", 27),
    Sketcher.Constraint("Horizontal", 29),
    Sketcher.Constraint("Horizontal", 31),
    Sketcher.Constraint("Horizontal", 33),
    Sketcher.Constraint("Horizontal", 35),
    Sketcher.Constraint("Horizontal", 37),
    Sketcher.Constraint("Horizontal", 39),
    Sketcher.Constraint("Horizontal", 41),
    Sketcher.Constraint("Horizontal", 43),
    Sketcher.Constraint("Horizontal", 45),
    Sketcher.Constraint("Horizontal", 47),
    Sketcher.Constraint("Horizontal", 49),
    Sketcher.Constraint("Horizontal", 51),
    Sketcher.Constraint("Horizontal", 53),
    Sketcher.Constraint("Horizontal", 55),
    Sketcher.Constraint("Horizontal", 57),
    Sketcher.Constraint("Horizontal", 59),
    Sketcher.Constraint("Horizontal", 61),
    Sketcher.Constraint("Horizontal", 63),
    Sketcher.Constraint("Horizontal", 65),
    Sketcher.Constraint("Horizontal", 67),
    Sketcher.Constraint("Horizontal", 69),
    Sketcher.Constraint("Horizontal", 71),
    Sketcher.Constraint("Equal", 2, 4),
    Sketcher.Constraint("Equal", 6, 8),
    Sketcher.Constraint("Equal", 10, 12),
    Sketcher.Constraint("Equal", 14, 16),
    Sketcher.Constraint("Equal", 18, 20),
    Sketcher.Constraint("Equal", 22, 24),
    Sketcher.Constraint("Equal", 26, 28),
    Sketcher.Constraint("Equal", 30, 32),
    Sketcher.Constraint("Equal", 34, 36),
    Sketcher.Constraint("Equal", 38, 40),
    Sketcher.Constraint("Equal", 42, 44),
    Sketcher.Constraint("Equal", 46, 48),
    Sketcher.Constraint("Equal", 50, 52),
    Sketcher.Constraint("Equal", 54, 56),
    Sketcher.Constraint("Equal", 58, 60),
    Sketcher.Constraint("Equal", 62, 64),
    Sketcher.Constraint("Equal", 66, 68),
    Sketcher.Constraint("Symmetric", 66, 3, 68, 3, -1, 1),
    Sketcher.Constraint("Symmetric", 2, 3, 4, 3, -2),
    Sketcher.Constraint("Symmetric", 10, 3, 12, 3, -2),
    Sketcher.Constraint("Symmetric", 18, 3, 20, 3, -2),
    Sketcher.Constraint("Symmetric", 26, 3, 28, 3, -2),
    Sketcher.Constraint("Symmetric", 34, 3, 36, 3, -2),
    Sketcher.Constraint("Symmetric", 42, 3, 44, 3, -2),
    Sketcher.Constraint("Symmetric", 50, 3, 52, 3, -2),
    Sketcher.Constraint("Symmetric", 58, 3, 60, 3, -2),
    Sketcher.Constraint("Symmetric", 64, 3, 70, 3, -2),
    Sketcher.Constraint("Vertical", 0, 3, 8, 3),
    Sketcher.Constraint("Vertical", 2, 3, 10, 3),
    Sketcher.Constraint("Vertical", 6, 3, 14, 3),
    Sketcher.Constraint("Vertical", 8, 3, 16, 3),
    Sketcher.Constraint("Vertical", 10, 3, 18, 3),
    Sketcher.Constraint("Vertical", 14, 3, 22, 3),
    Sketcher.Constraint("Vertical", 16, 3, 24, 3),
    Sketcher.Constraint("Vertical", 18, 3, 26, 3),
    Sketcher.Constraint("Vertical", 22, 3, 30, 3),
    Sketcher.Constraint("Vertical", 24, 3, 32, 3),
    Sketcher.Constraint("Vertical", 26, 3, 34, 3),
    Sketcher.Constraint("Vertical", 30, 3, 38, 3),
    Sketcher.Constraint("Vertical", 32, 3, 40, 3),
    Sketcher.Constraint("Vertical", 34, 3, 42, 3),
    Sketcher.Constraint("Vertical", 38, 3, 46, 3),
    Sketcher.Constraint("Vertical", 40, 3, 48, 3),
    Sketcher.Constraint("Vertical", 42, 3, 50, 3),
    Sketcher.Constraint("Vertical", 46, 3, 54, 3),
    Sketcher.Constraint("Vertical", 48, 3, 56, 3),
    Sketcher.Constraint("Vertical", 50, 3, 58, 3),
    Sketcher.Constraint("Vertical", 54, 3, 62, 3),
    Sketcher.Constraint("Vertical", 56, 3, 64, 3),
    Sketcher.Constraint("Vertical", 58, 3, 66, 3),
    Sketcher.Constraint("Vertical", 62, 3, 70, 3),
    Sketcher.Constraint("Radius", 0, Q("4.15 mm")),
    Sketcher.Constraint("DistanceX", 1, 1, 1, 2, Q("4.5 mm")),
    Sketcher.Constraint("DistanceY", 0, 3, -1, 1, Q("15 mm")),
    Sketcher.Constraint("DistanceY", 8, 3, -1, 1, Q("30 mm")),
    Sketcher.Constraint("DistanceY", 16, 3, -1, 1, Q("45 mm")),
    Sketcher.Constraint("DistanceY", 24, 3, -1, 1, Q("60 mm")),
    Sketcher.Constraint("DistanceY", 32, 3, -1, 1, Q("75 mm")),
    Sketcher.Constraint("DistanceY", 40, 3, -1, 1, Q("90 mm")),
    Sketcher.Constraint("DistanceY", 48, 3, -1, 1, Q("105 mm")),
    Sketcher.Constraint("DistanceY", 56, 3, -1, 1, Q("120 mm")),
    Sketcher.Constraint("DistanceX", 0, 3, -1, 1, Q("9.75 mm")),
])
pocket2 = doc.addObject("PartDesign::Pocket", "Pocket001")
body.addObject(pocket2)
pocket2.Profile = sketch3
pocket2.Length = 1

sketch4 = doc.addObject("Sketcher::SketchObject", "Sketch003")
body.addObject(sketch4)
sketch4.AttachmentSupport = (doc.YZ_Plane, [""])
sketch4.MapMode = "FlatFace"
sketch4.AttachmentOffset = App.Placement(App.Vector(0, 0, 17), App.Rotation())
add_polygon(sketch4, [(-50, -6), (0, -6), (0, -4.5), (-50, -4.5)])
sketch4.addConstraint([
    Sketcher.Constraint("Horizontal", 0),
    Sketcher.Constraint("Vertical", 1),
    Sketcher.Constraint("Horizontal", 2),
    Sketcher.Constraint("Vertical", 3),
    Sketcher.Constraint("PointOnObject", 0, 2, -2),
    Sketcher.Constraint("DistanceX", 0, 1, 0, 2, Q("50 mm")),
    Sketcher.Constraint("DistanceY", 1, 1, 1, 2, Q("1.5 mm")),
    Sketcher.Constraint("DistanceY", 0, 2, -1, 1, Q("6 mm")),
])
pad2 = doc.addObject("PartDesign::Pad", "Pad001")
body.addObject(pad2)
pad2.Profile = sketch4
pad2.Length = 0.4
body2 = doc.addObject("PartDesign::Body", "Body001")
doc.recompute()

body.Placement = App.Placement(App.Vector(-93.5, -156, 9), App.Rotation(App.Vector(0, 0, 1), 180))
boolean = doc.addObject("PartDesign::Boolean", "Boolean")
body2.addObject(boolean)
boolean.Type = "Fuse"
boolean.addObjects([body])

doc.recompute()
